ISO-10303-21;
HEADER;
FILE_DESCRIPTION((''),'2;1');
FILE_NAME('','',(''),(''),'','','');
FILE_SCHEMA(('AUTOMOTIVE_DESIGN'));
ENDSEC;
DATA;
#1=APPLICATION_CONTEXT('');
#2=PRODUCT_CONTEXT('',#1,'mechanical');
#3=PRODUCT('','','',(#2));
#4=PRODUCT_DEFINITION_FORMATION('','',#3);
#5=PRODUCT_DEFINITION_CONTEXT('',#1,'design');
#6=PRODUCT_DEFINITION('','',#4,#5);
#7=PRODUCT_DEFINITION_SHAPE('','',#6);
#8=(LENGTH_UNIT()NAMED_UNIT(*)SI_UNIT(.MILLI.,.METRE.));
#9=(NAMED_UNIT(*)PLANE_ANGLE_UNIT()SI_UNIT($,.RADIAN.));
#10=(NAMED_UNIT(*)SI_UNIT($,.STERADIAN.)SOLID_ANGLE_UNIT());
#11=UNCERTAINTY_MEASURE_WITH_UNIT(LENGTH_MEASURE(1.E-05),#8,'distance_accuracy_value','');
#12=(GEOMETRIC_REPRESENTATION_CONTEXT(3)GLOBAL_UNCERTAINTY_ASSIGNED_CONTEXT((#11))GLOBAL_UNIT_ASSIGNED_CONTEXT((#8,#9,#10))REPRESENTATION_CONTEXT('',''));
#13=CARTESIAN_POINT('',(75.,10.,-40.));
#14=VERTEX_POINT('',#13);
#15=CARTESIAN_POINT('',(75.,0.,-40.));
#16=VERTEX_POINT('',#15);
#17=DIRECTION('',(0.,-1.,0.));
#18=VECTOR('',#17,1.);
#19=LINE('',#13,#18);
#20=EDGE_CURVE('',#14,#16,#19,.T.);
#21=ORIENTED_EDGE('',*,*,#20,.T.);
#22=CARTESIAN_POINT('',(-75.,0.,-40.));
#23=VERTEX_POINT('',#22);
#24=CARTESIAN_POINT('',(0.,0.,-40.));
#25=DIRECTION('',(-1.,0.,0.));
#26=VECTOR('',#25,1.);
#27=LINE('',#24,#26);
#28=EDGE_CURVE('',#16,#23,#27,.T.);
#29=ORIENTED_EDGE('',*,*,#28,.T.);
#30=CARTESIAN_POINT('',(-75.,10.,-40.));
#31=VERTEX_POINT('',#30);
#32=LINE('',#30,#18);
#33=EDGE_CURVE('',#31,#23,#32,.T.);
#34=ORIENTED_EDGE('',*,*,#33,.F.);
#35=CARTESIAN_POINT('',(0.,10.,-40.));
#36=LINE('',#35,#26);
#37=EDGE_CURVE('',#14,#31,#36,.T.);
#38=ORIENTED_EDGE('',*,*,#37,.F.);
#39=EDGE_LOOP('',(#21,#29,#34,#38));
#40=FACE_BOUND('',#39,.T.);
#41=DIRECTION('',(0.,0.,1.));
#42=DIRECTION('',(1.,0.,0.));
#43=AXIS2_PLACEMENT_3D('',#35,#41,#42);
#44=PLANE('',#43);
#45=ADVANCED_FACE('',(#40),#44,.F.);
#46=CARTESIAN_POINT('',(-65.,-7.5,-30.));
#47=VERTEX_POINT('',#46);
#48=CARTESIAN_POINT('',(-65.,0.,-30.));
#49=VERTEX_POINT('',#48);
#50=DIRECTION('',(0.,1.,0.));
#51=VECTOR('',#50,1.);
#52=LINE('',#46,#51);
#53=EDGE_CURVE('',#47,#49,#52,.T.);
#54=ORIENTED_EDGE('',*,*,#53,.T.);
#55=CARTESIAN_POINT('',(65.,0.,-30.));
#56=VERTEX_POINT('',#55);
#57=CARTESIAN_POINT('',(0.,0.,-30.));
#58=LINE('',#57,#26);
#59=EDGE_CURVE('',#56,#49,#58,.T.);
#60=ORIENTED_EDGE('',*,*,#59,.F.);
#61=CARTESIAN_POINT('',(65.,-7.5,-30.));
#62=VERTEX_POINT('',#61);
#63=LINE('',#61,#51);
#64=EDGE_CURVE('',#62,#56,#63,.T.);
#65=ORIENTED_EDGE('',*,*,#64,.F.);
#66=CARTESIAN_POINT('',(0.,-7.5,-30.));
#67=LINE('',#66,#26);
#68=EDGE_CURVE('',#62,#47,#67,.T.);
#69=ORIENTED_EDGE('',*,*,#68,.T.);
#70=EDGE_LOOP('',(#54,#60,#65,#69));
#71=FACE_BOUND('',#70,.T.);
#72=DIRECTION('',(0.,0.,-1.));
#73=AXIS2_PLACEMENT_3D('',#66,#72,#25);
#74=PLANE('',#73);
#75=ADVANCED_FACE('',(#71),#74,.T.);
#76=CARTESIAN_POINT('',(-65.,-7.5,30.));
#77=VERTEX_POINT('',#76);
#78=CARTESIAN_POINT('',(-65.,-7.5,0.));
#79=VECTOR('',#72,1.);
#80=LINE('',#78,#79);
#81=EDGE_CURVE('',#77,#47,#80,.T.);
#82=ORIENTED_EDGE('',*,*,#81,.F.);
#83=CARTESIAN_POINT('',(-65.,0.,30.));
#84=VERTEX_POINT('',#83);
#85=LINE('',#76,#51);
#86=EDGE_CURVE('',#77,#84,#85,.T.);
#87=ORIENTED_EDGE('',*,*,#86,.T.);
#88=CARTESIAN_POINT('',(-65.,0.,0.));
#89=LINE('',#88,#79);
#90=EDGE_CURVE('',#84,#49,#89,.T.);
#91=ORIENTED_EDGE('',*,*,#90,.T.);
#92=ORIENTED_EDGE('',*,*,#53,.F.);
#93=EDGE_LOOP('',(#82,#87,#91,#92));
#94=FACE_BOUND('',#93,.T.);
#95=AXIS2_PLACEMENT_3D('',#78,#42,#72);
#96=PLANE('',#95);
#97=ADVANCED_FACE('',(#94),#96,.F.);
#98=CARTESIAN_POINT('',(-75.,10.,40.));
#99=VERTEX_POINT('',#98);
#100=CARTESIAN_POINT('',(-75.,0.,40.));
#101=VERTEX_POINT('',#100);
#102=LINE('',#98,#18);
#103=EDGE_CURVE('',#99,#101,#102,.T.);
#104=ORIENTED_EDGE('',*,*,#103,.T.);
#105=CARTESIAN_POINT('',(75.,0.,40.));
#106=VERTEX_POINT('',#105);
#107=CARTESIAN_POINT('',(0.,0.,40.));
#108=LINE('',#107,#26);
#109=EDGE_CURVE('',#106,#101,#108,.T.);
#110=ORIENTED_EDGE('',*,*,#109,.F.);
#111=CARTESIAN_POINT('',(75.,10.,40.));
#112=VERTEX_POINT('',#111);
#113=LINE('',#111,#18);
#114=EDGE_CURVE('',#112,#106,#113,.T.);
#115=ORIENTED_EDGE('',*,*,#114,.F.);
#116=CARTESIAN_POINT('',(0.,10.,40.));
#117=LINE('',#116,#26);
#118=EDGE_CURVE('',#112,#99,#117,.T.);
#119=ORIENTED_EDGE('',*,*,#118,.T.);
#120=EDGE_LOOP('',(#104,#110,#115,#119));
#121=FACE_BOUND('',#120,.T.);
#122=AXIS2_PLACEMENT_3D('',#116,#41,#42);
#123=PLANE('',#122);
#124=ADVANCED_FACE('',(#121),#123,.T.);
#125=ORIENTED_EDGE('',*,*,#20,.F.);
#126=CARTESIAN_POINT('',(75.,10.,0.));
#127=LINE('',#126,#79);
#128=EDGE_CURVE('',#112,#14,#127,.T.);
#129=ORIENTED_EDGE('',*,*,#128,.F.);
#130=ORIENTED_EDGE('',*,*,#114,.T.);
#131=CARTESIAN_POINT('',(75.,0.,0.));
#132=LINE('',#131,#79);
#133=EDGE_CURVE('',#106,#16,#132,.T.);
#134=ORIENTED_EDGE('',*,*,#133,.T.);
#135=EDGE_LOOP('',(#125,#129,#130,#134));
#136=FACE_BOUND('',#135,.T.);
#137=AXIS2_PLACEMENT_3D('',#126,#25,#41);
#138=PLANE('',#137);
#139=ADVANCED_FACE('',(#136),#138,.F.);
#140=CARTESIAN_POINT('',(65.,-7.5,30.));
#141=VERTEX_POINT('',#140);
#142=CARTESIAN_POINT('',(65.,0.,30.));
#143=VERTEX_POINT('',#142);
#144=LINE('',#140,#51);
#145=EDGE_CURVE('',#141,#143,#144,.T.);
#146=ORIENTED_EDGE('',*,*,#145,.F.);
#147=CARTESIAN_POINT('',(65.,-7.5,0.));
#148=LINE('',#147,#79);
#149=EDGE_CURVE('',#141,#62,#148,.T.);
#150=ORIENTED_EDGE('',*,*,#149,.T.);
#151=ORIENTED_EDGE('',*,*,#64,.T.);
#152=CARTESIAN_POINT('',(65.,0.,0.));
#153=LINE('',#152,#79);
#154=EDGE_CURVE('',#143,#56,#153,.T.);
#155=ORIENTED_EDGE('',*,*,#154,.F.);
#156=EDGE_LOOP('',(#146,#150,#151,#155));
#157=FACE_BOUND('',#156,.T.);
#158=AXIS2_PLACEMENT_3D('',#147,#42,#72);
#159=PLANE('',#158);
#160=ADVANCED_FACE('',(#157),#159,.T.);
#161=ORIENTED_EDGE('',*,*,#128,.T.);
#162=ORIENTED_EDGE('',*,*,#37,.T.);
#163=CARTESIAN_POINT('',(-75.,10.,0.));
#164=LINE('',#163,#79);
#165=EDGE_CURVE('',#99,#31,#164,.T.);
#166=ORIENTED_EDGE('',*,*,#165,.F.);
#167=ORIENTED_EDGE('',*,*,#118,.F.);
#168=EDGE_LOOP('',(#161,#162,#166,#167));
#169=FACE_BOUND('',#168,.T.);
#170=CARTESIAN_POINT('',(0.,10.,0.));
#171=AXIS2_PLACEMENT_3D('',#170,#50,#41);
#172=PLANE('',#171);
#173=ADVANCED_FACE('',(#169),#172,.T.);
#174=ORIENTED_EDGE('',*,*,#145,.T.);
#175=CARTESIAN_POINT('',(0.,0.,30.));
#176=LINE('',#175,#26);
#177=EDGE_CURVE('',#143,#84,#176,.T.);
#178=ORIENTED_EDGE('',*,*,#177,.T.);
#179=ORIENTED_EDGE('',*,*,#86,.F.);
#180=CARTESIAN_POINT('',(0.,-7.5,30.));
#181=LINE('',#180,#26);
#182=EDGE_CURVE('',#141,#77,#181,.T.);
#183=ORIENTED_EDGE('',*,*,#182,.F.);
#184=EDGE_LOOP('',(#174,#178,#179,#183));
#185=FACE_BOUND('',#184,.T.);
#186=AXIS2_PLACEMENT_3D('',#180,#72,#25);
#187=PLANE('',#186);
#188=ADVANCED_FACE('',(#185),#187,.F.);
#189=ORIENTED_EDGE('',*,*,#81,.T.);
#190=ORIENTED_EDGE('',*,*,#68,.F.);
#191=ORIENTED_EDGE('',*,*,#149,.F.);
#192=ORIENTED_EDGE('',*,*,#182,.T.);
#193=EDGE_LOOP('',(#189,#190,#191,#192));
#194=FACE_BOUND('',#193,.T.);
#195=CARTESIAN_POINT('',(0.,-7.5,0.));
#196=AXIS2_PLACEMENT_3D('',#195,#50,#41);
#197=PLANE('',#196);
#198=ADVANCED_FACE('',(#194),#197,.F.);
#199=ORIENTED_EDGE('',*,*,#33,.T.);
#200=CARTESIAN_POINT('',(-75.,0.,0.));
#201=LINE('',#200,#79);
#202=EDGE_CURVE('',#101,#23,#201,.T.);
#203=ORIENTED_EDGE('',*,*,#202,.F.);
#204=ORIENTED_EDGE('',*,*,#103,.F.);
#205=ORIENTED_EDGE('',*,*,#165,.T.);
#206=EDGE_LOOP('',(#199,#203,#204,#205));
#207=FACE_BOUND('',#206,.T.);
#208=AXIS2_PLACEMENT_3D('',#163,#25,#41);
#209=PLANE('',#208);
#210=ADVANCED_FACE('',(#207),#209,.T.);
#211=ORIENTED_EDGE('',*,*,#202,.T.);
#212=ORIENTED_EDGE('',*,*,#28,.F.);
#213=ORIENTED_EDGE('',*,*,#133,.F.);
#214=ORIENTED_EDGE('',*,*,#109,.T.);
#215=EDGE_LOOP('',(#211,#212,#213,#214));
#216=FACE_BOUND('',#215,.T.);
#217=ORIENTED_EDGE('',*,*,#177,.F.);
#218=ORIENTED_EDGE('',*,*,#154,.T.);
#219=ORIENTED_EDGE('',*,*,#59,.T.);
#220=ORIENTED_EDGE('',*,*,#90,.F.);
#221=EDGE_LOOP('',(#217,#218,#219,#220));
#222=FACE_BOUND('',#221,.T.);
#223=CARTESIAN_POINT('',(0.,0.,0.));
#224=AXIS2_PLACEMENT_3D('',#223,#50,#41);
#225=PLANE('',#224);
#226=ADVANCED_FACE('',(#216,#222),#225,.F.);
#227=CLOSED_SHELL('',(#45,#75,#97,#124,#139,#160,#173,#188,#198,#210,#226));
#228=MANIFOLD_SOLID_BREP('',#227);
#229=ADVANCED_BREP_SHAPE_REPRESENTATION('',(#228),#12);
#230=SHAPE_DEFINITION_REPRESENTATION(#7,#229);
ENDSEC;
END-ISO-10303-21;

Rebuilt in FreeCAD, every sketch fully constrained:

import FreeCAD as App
import Part
import Sketcher
from FreeCAD import Vector
Q = App.Units.Quantity


def add_polygon(sketch, points):
    """Adds a closed chain of lines whose ends are joined by coincident constraints."""
    first, n = sketch.GeometryCount, len(points)
    for a, b in zip(points, points[1:] + points[:1]):
        sketch.addGeometry(Part.LineSegment(App.Vector(*a, 0), App.Vector(*b, 0)), False)
    for i in range(n):
        sketch.addConstraint(Sketcher.Constraint("Coincident", first + i, 2, first + (i + 1) % n, 1))

doc = App.newDocument("Part")
params = doc.addObject("Spreadsheet::Sheet", "Params")
for row, (alias, value) in enumerate([
    ("sketch1_width", "130 mm"),
    ("sketch1_height", "60 mm"),
    ("pad1_length", "7.5 mm"),
    ("sketch2_width", "150 mm"),
    ("sketch2_height", "80 mm"),
    ("pad2_length", "10 mm"),
], start=1):
    params.set(f"A{row}", alias)
    params.set(f"B{row}", "=" + value)
    params.setAlias(f"B{row}", alias)

body = doc.addObject("PartDesign::Body", "Body")

# Sketch on XZ plane
sketch1 = doc.addObject("Sketcher::SketchObject", "Sketch")
body.addObject(sketch1)
sketch1.AttachmentSupport = (doc.XZ_Plane, [""])
sketch1.MapMode = "FlatFace"
add_polygon(sketch1, [(-65, -30), (-65, 30), (65, 30), (65, -30)])  # lines 0-3
sketch1.addConstraint(Sketcher.Constraint("Vertical", 0))
sketch1.addConstraint(Sketcher.Constraint("Horizontal", 1))
sketch1.addConstraint(Sketcher.Constraint("Vertical", 2))
sketch1.addConstraint(Sketcher.Constraint("Horizontal", 3))
sketch1.addConstraint(Sketcher.Constraint("Symmetric", 0, 2, 2, 2, -1, 1))
sketch1.addConstraint(Sketcher.Constraint("DistanceX", 1, 1, 1, 2, Q("130 mm")))
sketch1.addConstraint(Sketcher.Constraint("DistanceY", 0, 1, 0, 2, Q("60 mm")))
sketch1.setExpression("Constraints[9]", "Params.sketch1_width")
sketch1.setExpression("Constraints[10]", "Params.sketch1_height")
pad1 = doc.addObject("PartDesign::Pad", "Pad")
body.addObject(pad1)
pad1.Profile = sketch1
pad1.setExpression("Length", "Params.pad1_length")

# Sketch on XZ plane
sketch2 = doc.addObject("Sketcher::SketchObject", "Sketch001")
body.addObject(sketch2)
sketch2.AttachmentSupport = (doc.XZ_Plane, [""])
sketch2.MapMode = "FlatFace"
add_polygon(sketch2, [(-75, -40), (-75, 40), (75, 40), (75, -40)])  # lines 0-3
sketch2.addConstraint(Sketcher.Constraint("Vertical", 0))
sketch2.addConstraint(Sketcher.Constraint("Horizontal", 1))
sketch2.addConstraint(Sketcher.Constraint("Vertical", 2))
sketch2.addConstraint(Sketcher.Constraint("Horizontal", 3))
sketch2.addConstraint(Sketcher.Constraint("Symmetric", 0, 2, 2, 2, -1, 1))
sketch2.addConstraint(Sketcher.Constraint("DistanceX", 1, 1, 1, 2, Q("150 mm")))
sketch2.addConstraint(Sketcher.Constraint("DistanceY", 0, 1, 0, 2, Q("80 mm")))
sketch2.setExpression("Constraints[9]", "Params.sketch2_width")
sketch2.setExpression("Constraints[10]", "Params.sketch2_height")
pad2 = doc.addObject("PartDesign::Pad", "Pad001")
body.addObject(pad2)
pad2.Profile = sketch2
pad2.setExpression("Length", "Params.pad2_length")
pad2.Reversed = True

doc.recompute()
